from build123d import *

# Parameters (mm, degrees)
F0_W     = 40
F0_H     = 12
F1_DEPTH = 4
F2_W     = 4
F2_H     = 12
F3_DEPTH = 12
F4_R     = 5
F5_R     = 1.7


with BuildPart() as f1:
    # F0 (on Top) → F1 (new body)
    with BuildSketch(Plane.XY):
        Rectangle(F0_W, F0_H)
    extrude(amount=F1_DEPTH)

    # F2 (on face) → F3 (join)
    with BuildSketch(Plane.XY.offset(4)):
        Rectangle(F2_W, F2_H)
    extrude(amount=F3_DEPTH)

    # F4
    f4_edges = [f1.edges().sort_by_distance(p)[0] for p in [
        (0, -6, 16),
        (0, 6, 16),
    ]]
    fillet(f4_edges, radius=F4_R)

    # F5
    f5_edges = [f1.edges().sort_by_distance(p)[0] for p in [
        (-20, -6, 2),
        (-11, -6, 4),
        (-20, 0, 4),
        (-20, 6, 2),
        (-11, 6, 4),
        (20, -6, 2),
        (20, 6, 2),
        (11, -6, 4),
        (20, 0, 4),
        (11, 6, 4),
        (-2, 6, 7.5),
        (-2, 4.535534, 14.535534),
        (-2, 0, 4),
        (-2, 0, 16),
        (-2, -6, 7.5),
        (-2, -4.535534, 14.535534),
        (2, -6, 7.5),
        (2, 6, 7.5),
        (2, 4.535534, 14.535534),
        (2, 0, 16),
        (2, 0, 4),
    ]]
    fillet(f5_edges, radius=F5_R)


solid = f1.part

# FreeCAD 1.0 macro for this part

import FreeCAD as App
import Part
import Sketcher

V = App.Vector


def edges_at(feature, points):
    """Names of the edges that pass closest to the given points."""
    edges = feature.Shape.Edges
    near = lambda p: min(range(len(edges)), key=lambda i: edges[i].distToShape(Part.Vertex(*p))[0])
    return sorted({f"Edge{near(p) + 1}" for p in points})

doc = App.newDocument("Part")
params = doc.addObject("Spreadsheet::Sheet", "Params")
for row, (alias, value) in enumerate([
    ("sketch1_width", "40 mm"),
    ("sketch1_height", "12 mm"),
    ("pad1_length", "4 mm"),
    ("sketch2_width", "4 mm"),
    ("sketch2_height", "12 mm"),
    ("pad2_length", "12 mm"),
    ("fillet_radius", "5 mm"),
    ("fillet2_radius", "1.7 mm"),
], start=1):
    params.set(f"A{row}", alias)
    params.set(f"B{row}", "=" + value)
    params.setAlias(f"B{row}", alias)

body = doc.addObject("PartDesign::Body", "Body")

# Sketch on XY plane
sketch1 = doc.addObject("Sketcher::SketchObject", "Sketch")
body.addObject(sketch1)
sketch1.AttachmentSupport = (doc.XY_Plane, [""])
sketch1.MapMode = "FlatFace"
sketch1.addGeometry([
    Part.LineSegment(V(-20, 6, 0), V(-20, -6, 0)),
    Part.LineSegment(V(-20, -6, 0), V(20, -6, 0)),
    Part.LineSegment(V(20, -6, 0), V(20, 6, 0)),
    Part.LineSegment(V(20, 6, 0), V(-20, 6, 0)),
], False)
sketch1.addConstraint([
    Sketcher.Constraint("Coincident", 0, 2, 1, 1),
    Sketcher.Constraint("Coincident", 1, 2, 2, 1),
    Sketcher.Constraint("Coincident", 2, 2, 3, 1),
    Sketcher.Constraint("Coincident", 3, 2, 0, 1),
    Sketcher.Constraint("Vertical", 0),
    Sketcher.Constraint("Horizontal", 1),
    Sketcher.Constraint("Vertical", 2),
    Sketcher.Constraint("Horizontal", 3),
    Sketcher.Constraint("Symmetric", 0, 2, 2, 2, -1, 1),
    Sketcher.Constraint("DistanceX", 1, 1, 1, 2, 40.0),
    Sketcher.Constraint("DistanceY", 0, 2, 0, 1, 12.0),
])
sketch1.setExpression("Constraints[9]", "Params.sketch1_width")
sketch1.setExpression("Constraints[10]", "Params.sketch1_height")
pad1 = doc.addObject("PartDesign::Pad", "Pad")
body.addObject(pad1)
pad1.Profile = sketch1
pad1.setExpression("Length", "Params.pad1_length")

# Sketch on XY plane
sketch2 = doc.addObject("Sketcher::SketchObject", "Sketch001")
body.addObject(sketch2)
sketch2.AttachmentSupport = (doc.XY_Plane, [""])
sketch2.MapMode = "FlatFace"
sketch2.AttachmentOffset = App.Placement(V(0, 0, 4), App.Rotation())
sketch2.addGeometry([
    Part.LineSegment(V(-2, 6, 0), V(-2, -6, 0)),
    Part.LineSegment(V(-2, -6, 0), V(2, -6, 0)),
    Part.LineSegment(V(2, -6, 0), V(2, 6, 0)),
    Part.LineSegment(V(2, 6, 0), V(-2, 6, 0)),
], False)
sketch2.addConstraint([
    Sketcher.Constraint("Coincident", 0, 2, 1, 1),
    Sketcher.Constraint("Coincident", 1, 2, 2, 1),
    Sketcher.Constraint("Coincident", 2, 2, 3, 1),
    Sketcher.Constraint("Coincident", 3, 2, 0, 1),
    Sketcher.Constraint("Vertical", 0),
    Sketcher.Constraint("Horizontal", 1),
    Sketcher.Constraint("Vertical", 2),
    Sketcher.Constraint("Horizontal", 3),
    Sketcher.Constraint("Symmetric", 0, 2, 2, 2, -1, 1),
    Sketcher.Constraint("DistanceX", 1, 1, 1, 2, 4.0),
    Sketcher.Constraint("DistanceY", 0, 2, 0, 1, 12.0),
])
sketch2.setExpression("Constraints[9]", "Params.sketch2_width")
sketch2.setExpression("Constraints[10]", "Params.sketch2_height")
pad2 = doc.addObject("PartDesign::Pad", "Pad001")
body.addObject(pad2)
pad2.Profile = sketch2
pad2.setExpression("Length", "Params.pad2_length")
doc.recompute()

fillet = doc.addObject("PartDesign::Fillet", "Fillet")
body.addObject(fillet)
fillet.Base = (pad2, edges_at(pad2, [(0, -6, 16), (0, 6, 16)]))
fillet.setExpression("Radius", "Params.fillet_radius")
doc.recompute()

fillet2 = doc.addObject("PartDesign::Fillet", "Fillet001")
body.addObject(fillet2)
fillet2.Base = (fillet, edges_at(fillet, [
    (-20, -6, 2),
    (-11, -6, 4),
    (-20, 0, 4),
    (-20, 6, 2),
    (-11, 6, 4),
    (20, -6, 2),
    (20, 6, 2),
    (11, -6, 4),
    (20, 0, 4),
    (11, 6, 4),
    (-2, 6, 7.5),
    (-2, 4.536, 14.536),
    (-2, 0, 4),
    (-2, 0, 16),
    (-2, -6, 7.5),
    (-2, -4.536, 14.536),
    (2, -6, 7.5),
    (2, 6, 7.5),
    (2, 4.536, 14.536),
    (2, 0, 16),
    (2, 0, 4),
]))
fillet2.setExpression("Radius", "Params.fillet2_radius")

doc.recompute()
